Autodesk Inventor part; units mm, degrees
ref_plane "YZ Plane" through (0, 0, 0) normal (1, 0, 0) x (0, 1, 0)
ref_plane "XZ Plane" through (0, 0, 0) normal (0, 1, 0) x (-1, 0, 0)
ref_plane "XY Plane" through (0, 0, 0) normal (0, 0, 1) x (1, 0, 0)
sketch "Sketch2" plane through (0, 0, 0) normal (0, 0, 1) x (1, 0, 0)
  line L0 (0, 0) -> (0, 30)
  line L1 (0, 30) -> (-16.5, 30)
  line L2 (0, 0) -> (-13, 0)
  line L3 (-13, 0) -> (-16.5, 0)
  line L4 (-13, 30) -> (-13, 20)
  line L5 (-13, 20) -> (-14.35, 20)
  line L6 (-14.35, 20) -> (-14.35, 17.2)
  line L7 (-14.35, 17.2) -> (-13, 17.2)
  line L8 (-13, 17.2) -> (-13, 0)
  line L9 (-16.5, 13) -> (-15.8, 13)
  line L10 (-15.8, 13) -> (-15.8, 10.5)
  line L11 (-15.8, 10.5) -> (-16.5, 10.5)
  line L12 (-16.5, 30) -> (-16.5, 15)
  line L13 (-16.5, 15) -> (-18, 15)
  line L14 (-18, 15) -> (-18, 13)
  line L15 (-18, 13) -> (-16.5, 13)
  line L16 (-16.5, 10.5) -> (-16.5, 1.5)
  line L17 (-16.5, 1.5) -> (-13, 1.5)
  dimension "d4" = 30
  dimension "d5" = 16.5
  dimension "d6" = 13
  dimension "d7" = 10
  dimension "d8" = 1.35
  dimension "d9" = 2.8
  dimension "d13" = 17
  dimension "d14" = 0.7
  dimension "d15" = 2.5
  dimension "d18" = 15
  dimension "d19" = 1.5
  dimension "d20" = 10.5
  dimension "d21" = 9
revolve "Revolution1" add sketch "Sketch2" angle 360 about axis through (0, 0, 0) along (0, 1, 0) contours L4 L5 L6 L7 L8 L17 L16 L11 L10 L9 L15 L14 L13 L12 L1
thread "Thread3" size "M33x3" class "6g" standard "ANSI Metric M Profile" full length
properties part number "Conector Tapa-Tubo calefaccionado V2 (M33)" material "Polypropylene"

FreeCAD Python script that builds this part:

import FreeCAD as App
import Part
import Sketcher

V = App.Vector

doc = App.newDocument("Part")
body = doc.addObject("PartDesign::Body", "Body")

sketch1 = doc.addObject("Sketcher::SketchObject", "Sketch")
body.addObject(sketch1)
sketch1.AttachmentSupport = (doc.XY_Plane, [""])
sketch1.MapMode = "FlatFace"
sketch1.addGeometry([
    Part.LineSegment(V(-13, 20, 0), V(-13, 30, 0)),
    Part.LineSegment(V(-13, 30, 0), V(-16.5, 30, 0)),
    Part.LineSegment(V(-16.5, 30, 0), V(-16.5, 15, 0)),
    Part.LineSegment(V(-16.5, 15, 0), V(-18, 15, 0)),
    Part.LineSegment(V(-18, 15, 0), V(-18, 13, 0)),
    Part.LineSegment(V(-18, 13, 0), V(-15.8, 13, 0)),
    Part.LineSegment(V(-15.8, 13, 0), V(-15.8, 10.5, 0)),
    Part.LineSegment(V(-15.8, 10.5, 0), V(-16.5, 10.5, 0)),
    Part.LineSegment(V(-16.5, 10.5, 0), V(-16.5, 1.5, 0)),
    Part.LineSegment(V(-16.5, 1.5, 0), V(-13, 1.5, 0)),
    Part.LineSegment(V(-13, 1.5, 0), V(-13, 17.2, 0)),
    Part.LineSegment(V(-13, 17.2, 0), V(-14.3, 17.2, 0)),
    Part.LineSegment(V(-14.3, 17.2, 0), V(-14.3, 20, 0)),
    Part.LineSegment(V(-14.3, 20, 0), V(-13, 20, 0)),
], False)
sketch1.addConstraint([
    Sketcher.Constraint("Coincident", 0, 2, 1, 1),
    Sketcher.Constraint("Coincident", 1, 2, 2, 1),
    Sketcher.Constraint("Coincident", 2, 2, 3, 1),
    Sketcher.Constraint("Coincident", 3, 2, 4, 1),
    Sketcher.Constraint("Coincident", 4, 2, 5, 1),
    Sketcher.Constraint("Coincident", 5, 2, 6, 1),
    Sketcher.Constraint("Coincident", 6, 2, 7, 1),
    Sketcher.Constraint("Coincident", 7, 2, 8, 1),
    Sketcher.Constraint("Coincident", 8, 2, 9, 1),
    Sketcher.Constraint("Coincident", 9, 2, 10, 1),
    Sketcher.Constraint("Coincident", 10, 2, 11, 1),
    Sketcher.Constraint("Coincident", 11, 2, 12, 1),
    Sketcher.Constraint("Coincident", 12, 2, 13, 1),
    Sketcher.Constraint("Coincident", 13, 2, 0, 1),
    Sketcher.Constraint("Vertical", 0),
    Sketcher.Constraint("Horizontal", 1),
    Sketcher.Constraint("Vertical", 2),
    Sketcher.Constraint("Horizontal", 3),
    Sketcher.Constraint("Vertical", 4),
    Sketcher.Constraint("Horizontal", 5),
    Sketcher.Constraint("Vertical", 6),
    Sketcher.Constraint("Horizontal", 7),
    Sketcher.Constraint("Vertical", 8),
    Sketcher.Constraint("Horizontal", 9),
    Sketcher.Constraint("Vertical", 10),
    Sketcher.Constraint("Horizontal", 11),
    Sketcher.Constraint("Vertical", 12),
    Sketcher.Constraint("Horizontal", 13),
    Sketcher.Constraint("Vertical", 2, 2, 7, 2),
    Sketcher.Constraint("Vertical", 0, 2, 9, 2),
    Sketcher.Constraint("DistanceY", 0, 1, 0, 2, 10.0),
    Sketcher.Constraint("DistanceY", 2, 2, 2, 1, 15.0),
    Sketcher.Constraint("DistanceY", 8, 2, 8, 1, 9.0),
    Sketcher.Constraint("DistanceX", 3, 2, 3, 1, 1.5),
    Sketcher.Constraint("DistanceX", 7, 2, 7, 1, 0.7),
    Sketcher.Constraint("DistanceY", 6, 2, 6, 1, 2.5),
    Sketcher.Constraint("DistanceY", 12, 1, 12, 2, 2.8),
    Sketcher.Constraint("DistanceX", 0, 2, -1, 1, 13.0),
    Sketcher.Constraint("DistanceY", -1, 1, 0, 2, 30.0),
    Sketcher.Constraint("DistanceY", -1, 1, 4, 2, 13.0),
    Sketcher.Constraint("DistanceX", 11, 2, 11, 1, 1.35),
    Sketcher.Constraint("DistanceX", 1, 2, -1, 1, 16.5),
])
revolution = doc.addObject("PartDesign::Revolution", "Revolution")
body.addObject(revolution)
revolution.Profile = sketch1
revolution.ReferenceAxis = (sketch1, ["V_Axis"])
revolution.Angle = 360

doc.recompute()
